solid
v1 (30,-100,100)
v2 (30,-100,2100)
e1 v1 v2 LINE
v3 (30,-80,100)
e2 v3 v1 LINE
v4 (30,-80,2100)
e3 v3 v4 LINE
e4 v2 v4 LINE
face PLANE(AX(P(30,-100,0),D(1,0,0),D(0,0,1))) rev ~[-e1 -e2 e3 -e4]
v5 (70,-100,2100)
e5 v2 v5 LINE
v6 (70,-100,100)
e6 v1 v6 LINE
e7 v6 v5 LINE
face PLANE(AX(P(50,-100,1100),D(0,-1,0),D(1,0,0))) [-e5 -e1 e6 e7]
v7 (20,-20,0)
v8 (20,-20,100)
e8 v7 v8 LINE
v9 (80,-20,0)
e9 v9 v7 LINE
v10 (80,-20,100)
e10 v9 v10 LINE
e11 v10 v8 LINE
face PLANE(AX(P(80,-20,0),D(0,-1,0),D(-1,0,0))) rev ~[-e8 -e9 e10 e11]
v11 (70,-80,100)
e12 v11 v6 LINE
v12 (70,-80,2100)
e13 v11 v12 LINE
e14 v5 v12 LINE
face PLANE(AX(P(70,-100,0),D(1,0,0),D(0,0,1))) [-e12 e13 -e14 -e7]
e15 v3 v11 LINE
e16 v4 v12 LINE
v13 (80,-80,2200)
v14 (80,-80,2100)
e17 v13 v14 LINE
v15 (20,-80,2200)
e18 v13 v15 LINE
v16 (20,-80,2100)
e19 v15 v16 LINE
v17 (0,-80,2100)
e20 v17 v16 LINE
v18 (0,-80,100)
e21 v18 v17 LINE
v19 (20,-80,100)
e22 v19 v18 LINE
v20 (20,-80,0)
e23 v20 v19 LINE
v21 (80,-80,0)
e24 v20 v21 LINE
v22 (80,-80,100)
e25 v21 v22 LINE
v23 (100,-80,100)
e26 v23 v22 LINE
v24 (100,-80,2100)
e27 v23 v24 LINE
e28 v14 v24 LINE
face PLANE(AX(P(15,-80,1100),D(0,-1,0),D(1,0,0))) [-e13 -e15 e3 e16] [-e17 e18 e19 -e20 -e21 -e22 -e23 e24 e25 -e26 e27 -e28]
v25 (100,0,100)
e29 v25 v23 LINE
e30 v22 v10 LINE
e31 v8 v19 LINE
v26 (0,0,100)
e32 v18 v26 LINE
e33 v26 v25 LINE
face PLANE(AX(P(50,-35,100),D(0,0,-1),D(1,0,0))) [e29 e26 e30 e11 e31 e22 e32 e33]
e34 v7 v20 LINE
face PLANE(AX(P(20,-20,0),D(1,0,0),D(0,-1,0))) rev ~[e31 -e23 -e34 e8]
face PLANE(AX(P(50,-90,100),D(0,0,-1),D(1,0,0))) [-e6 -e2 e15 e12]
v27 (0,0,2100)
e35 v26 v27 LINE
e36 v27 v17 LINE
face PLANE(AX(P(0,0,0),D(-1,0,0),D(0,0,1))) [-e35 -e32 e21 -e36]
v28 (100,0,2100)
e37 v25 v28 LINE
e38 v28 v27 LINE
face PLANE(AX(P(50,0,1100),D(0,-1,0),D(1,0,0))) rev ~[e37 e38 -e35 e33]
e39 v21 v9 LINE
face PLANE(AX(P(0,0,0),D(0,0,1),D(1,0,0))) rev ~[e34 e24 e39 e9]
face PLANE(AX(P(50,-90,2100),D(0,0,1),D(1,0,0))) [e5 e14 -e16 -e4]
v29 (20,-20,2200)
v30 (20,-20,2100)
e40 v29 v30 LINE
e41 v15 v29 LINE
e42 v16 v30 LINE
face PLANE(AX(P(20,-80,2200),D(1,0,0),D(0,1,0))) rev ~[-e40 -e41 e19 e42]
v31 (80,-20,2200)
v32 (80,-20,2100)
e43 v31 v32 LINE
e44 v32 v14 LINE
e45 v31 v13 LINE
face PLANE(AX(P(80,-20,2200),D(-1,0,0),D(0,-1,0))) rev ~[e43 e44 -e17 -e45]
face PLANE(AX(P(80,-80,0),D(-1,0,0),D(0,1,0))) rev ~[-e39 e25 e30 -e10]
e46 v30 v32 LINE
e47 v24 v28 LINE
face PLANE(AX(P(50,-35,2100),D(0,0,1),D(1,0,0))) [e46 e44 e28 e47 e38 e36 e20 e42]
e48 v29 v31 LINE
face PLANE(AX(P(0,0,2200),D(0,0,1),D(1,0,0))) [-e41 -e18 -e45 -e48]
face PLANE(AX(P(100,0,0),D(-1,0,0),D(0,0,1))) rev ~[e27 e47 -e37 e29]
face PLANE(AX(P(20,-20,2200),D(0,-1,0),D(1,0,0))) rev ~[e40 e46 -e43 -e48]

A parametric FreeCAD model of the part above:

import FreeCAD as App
import Part
import Sketcher
from FreeCAD import Vector
Q = App.Units.Quantity

doc = App.newDocument("Part")
body = doc.addObject("PartDesign::Body", "Body")

sketch1 = body.newObject("Sketcher::SketchObject", "Sketch")
sketch1.AttachmentSupport = (doc.getObject("XZ_Plane"), [""])
sketch1.MapMode = "FlatFace"
sketch1.addGeometry([
    Part.LineSegment(Vector(0, 2200, 0), Vector(0, 0, 0)),
    Part.LineSegment(Vector(0, 0, 0), Vector(100, 0, 0)),
    Part.LineSegment(Vector(100, 0, 0), Vector(100, 2200, 0)),
    Part.LineSegment(Vector(100, 2200, 0), Vector(0, 2200, 0)),
], False)
sketch1.addConstraint([
    Sketcher.Constraint("Coincident", 0, 2, 1, 1),
    Sketcher.Constraint("Coincident", 1, 2, 2, 1),
    Sketcher.Constraint("Coincident", 2, 2, 3, 1),
    Sketcher.Constraint("Coincident", 3, 2, 0, 1),
    Sketcher.Constraint("Vertical", 0),
    Sketcher.Constraint("Horizontal", 1),
    Sketcher.Constraint("Vertical", 2),
    Sketcher.Constraint("Horizontal", 3),
    Sketcher.Constraint("Coincident", 0, 2, -1, 1),
    Sketcher.Constraint("DistanceX", 1, 1, 1, 2, Q("100 mm")),
    Sketcher.Constraint("DistanceY", 0, 2, 0, 1, Q("2200 mm")),
])
pad1 = body.newObject("PartDesign::Pad", "Pad")
pad1.Profile = sketch1
pad1.Length = 100

sketch2 = body.newObject("Sketcher::SketchObject", "Sketch001")
sketch2.AttachmentSupport = (doc.getObject("XZ_Plane"), [""])
sketch2.MapMode = "FlatFace"
sketch2.AttachmentOffset = App.Placement(Vector(0, 0, 100), App.Rotation())
sketch2.addGeometry([
    Part.LineSegment(Vector(0, 2200, 0), Vector(0, 0, 0)),
    Part.LineSegment(Vector(0, 0, 0), Vector(30, 0, 0)),
    Part.LineSegment(Vector(30, 0, 0), Vector(30, 2200, 0)),
    Part.LineSegment(Vector(30, 2200, 0), Vector(0, 2200, 0)),
    Part.LineSegment(Vector(70, 2200, 0), Vector(70, 0, 0)),
    Part.LineSegment(Vector(70, 0, 0), Vector(100, 0, 0)),
    Part.LineSegment(Vector(100, 0, 0), Vector(100, 2200, 0)),
    Part.LineSegment(Vector(100, 2200, 0), Vector(70, 2200, 0)),
], False)
sketch2.addConstraint([
    Sketcher.Constraint("Coincident", 0, 2, 1, 1),
    Sketcher.Constraint("Coincident", 1, 2, 2, 1),
    Sketcher.Constraint("Coincident", 2, 2, 3, 1),
    Sketcher.Constraint("Coincident", 3, 2, 0, 1),
    Sketcher.Constraint("Coincident", 4, 2, 5, 1),
    Sketcher.Constraint("Coincident", 5, 2, 6, 1),
    Sketcher.Constraint("Coincident", 6, 2, 7, 1),
    Sketcher.Constraint("Coincident", 7, 2, 4, 1),
    Sketcher.Constraint("Vertical", 0),
    Sketcher.Constraint("Horizontal", 1),
    Sketcher.Constraint("Vertical", 2),
    Sketcher.Constraint("Horizontal", 3),
    Sketcher.Constraint("Vertical", 4),
    Sketcher.Constraint("Horizontal", 5),
    Sketcher.Constraint("Vertical", 6),
    Sketcher.Constraint("Horizontal", 7),
    Sketcher.Constraint("Coincident", 0, 2, -1, 1),
    Sketcher.Constraint("PointOnObject", 4, 2, -1),
    Sketcher.Constraint("Horizontal", 3, 2, 6, 2),
    Sketcher.Constraint("Equal", 3, 5),
    Sketcher.Constraint("DistanceX", 1, 1, 1, 2, Q("30 mm")),
    Sketcher.Constraint("DistanceY", 0, 2, 0, 1, Q("2200 mm")),
    Sketcher.Constraint("DistanceX", -1, 1, 4, 2, Q("70 mm")),
])
pocket1 = body.newObject("PartDesign::Pocket", "Pocket")
pocket1.Profile = sketch2
pocket1.Length = 20

sketch3 = body.newObject("Sketcher::SketchObject", "Sketch002")
sketch3.AttachmentSupport = (doc.getObject("XY_Plane"), [""])
sketch3.MapMode = "FlatFace"
sketch3.AttachmentOffset = App.Placement(Vector(0, 0, 2200), App.Rotation())
sketch3.addGeometry([
    Part.LineSegment(Vector(20, -80, 0), Vector(20, -20, 0)),
    Part.LineSegment(Vector(20, -20, 0), Vector(80, -20, 0)),
    Part.LineSegment(Vector(80, -20, 0), Vector(80, -80, 0)),
    Part.LineSegment(Vector(80, -80, 0), Vector(100, -80, 0)),
    Part.LineSegment(Vector(100, -80, 0), Vector(100, 0, 0)),
    Part.LineSegment(Vector(100, 0, 0), Vector(0, 0, 0)),
    Part.LineSegment(Vector(0, 0, 0), Vector(0, -80, 0)),
    Part.LineSegment(Vector(0, -80, 0), Vector(20, -80, 0)),
    Part.LineSegment(Vector(30, -80, 0), Vector(30, -100, 0)),
    Part.LineSegment(Vector(30, -100, 0), Vector(70, -100, 0)),
    Part.LineSegment(Vector(70, -100, 0), Vector(70, -80, 0)),
    Part.LineSegment(Vector(70, -80, 0), Vector(30, -80, 0)),
], False)
sketch3.addConstraint([
    Sketcher.Constraint("Coincident", 0, 2, 1, 1),
    Sketcher.Constraint("Coincident", 1, 2, 2, 1),
    Sketcher.Constraint("Coincident", 2, 2, 3, 1),
    Sketcher.Constraint("Coincident", 3, 2, 4, 1),
    Sketcher.Constraint("Coincident", 4, 2, 5, 1),
    Sketcher.Constraint("Coincident", 5, 2, 6, 1),
    Sketcher.Constraint("Coincident", 6, 2, 7, 1),
    Sketcher.Constraint("Coincident", 7, 2, 0, 1),
    Sketcher.Constraint("Coincident", 8, 2, 9, 1),
    Sketcher.Constraint("Coincident", 9, 2, 10, 1),
    Sketcher.Constraint("Coincident", 10, 2, 11, 1),
    Sketcher.Constraint("Coincident", 11, 2, 8, 1),
    Sketcher.Constraint("Vertical", 0),
    Sketcher.Constraint("Horizontal", 1),
    Sketcher.Constraint("Vertical", 2),
    Sketcher.Constraint("Horizontal", 3),
    Sketcher.Constraint("Vertical", 4),
    Sketcher.Constraint("Horizontal", 5),
    Sketcher.Constraint("Vertical", 6),
    Sketcher.Constraint("Horizontal", 7),
    Sketcher.Constraint("Vertical", 8),
    Sketcher.Constraint("Horizontal", 9),
    Sketcher.Constraint("Vertical", 10),
    Sketcher.Constraint("Horizontal", 11),
    Sketcher.Constraint("Coincident", 5, 2, -1, 1),
    Sketcher.Constraint("Horizontal", 3, 2, 6, 2),
    Sketcher.Constraint("Horizontal", 7, 2, 10, 2),
    Sketcher.Constraint("Equal", 3, 7),
    Sketcher.Constraint("Equal", 1, 0),
    Sketcher.Constraint("Equal", 7, 8),
    Sketcher.Constraint("DistanceX", 1, 1, 1, 2, Q("60 mm")),
    Sketcher.Constraint("DistanceX", 3, 1, 3, 2, Q("20 mm")),
    Sketcher.Constraint("DistanceX", 9, 1, 9, 2, Q("40 mm")),
    Sketcher.Constraint("DistanceY", 4, 1, 4, 2, Q("80 mm")),
    Sketcher.Constraint("DistanceX", -1, 1, 8, 2, Q("30 mm")),
])
pocket2 = body.newObject("PartDesign::Pocket", "Pocket001")
pocket2.Profile = sketch3
pocket2.Length = 100

sketch4 = body.newObject("Sketcher::SketchObject", "Sketch003")
sketch4.AttachmentSupport = (doc.getObject("XY_Plane"), [""])
sketch4.MapMode = "FlatFace"
sketch4.addGeometry([
    Part.LineSegment(Vector(80, -80, 0), Vector(80, -20, 0)),
    Part.LineSegment(Vector(80, -20, 0), Vector(20, -20, 0)),
    Part.LineSegment(Vector(20, -20, 0), Vector(20, -80, 0)),
    Part.LineSegment(Vector(20, -80, 0), Vector(0, -80, 0)),
    Part.LineSegment(Vector(0, -80, 0), Vector(0, 0, 0)),
    Part.LineSegment(Vector(0, 0, 0), Vector(100, 0, 0)),
    Part.LineSegment(Vector(100, 0, 0), Vector(100, -80, 0)),
    Part.LineSegment(Vector(100, -80, 0), Vector(80, -80, 0)),
    Part.LineSegment(Vector(30, -100, 0), Vector(30, -80, 0)),
    Part.LineSegment(Vector(30, -80, 0), Vector(70, -80, 0)),
    Part.LineSegment(Vector(70, -80, 0), Vector(70, -100, 0)),
    Part.LineSegment(Vector(70, -100, 0), Vector(30, -100, 0)),
], False)
sketch4.addConstraint([
    Sketcher.Constraint("Coincident", 0, 2, 1, 1),
    Sketcher.Constraint("Coincident", 1, 2, 2, 1),
    Sketcher.Constraint("Coincident", 2, 2, 3, 1),
    Sketcher.Constraint("Coincident", 3, 2, 4, 1),
    Sketcher.Constraint("Coincident", 4, 2, 5, 1),
    Sketcher.Constraint("Coincident", 5, 2, 6, 1),
    Sketcher.Constraint("Coincident", 6, 2, 7, 1),
    Sketcher.Constraint("Coincident", 7, 2, 0, 1),
    Sketcher.Constraint("Coincident", 8, 2, 9, 1),
    Sketcher.Constraint("Coincident", 9, 2, 10, 1),
    Sketcher.Constraint("Coincident", 10, 2, 11, 1),
    Sketcher.Constraint("Coincident", 11, 2, 8, 1),
    Sketcher.Constraint("Vertical", 0),
    Sketcher.Constraint("Horizontal", 1),
    Sketcher.Constraint("Vertical", 2),
    Sketcher.Constraint("Horizontal", 3),
    Sketcher.Constraint("Vertical", 4),
    Sketcher.Constraint("Horizontal", 5),
    Sketcher.Constraint("Vertical", 6),
    Sketcher.Constraint("Horizontal", 7),
    Sketcher.Constraint("Vertical", 8),
    Sketcher.Constraint("Horizontal", 9),
    Sketcher.Constraint("Vertical", 10),
    Sketcher.Constraint("Horizontal", 11),
    Sketcher.Constraint("Coincident", 4, 2, -1, 1),
    Sketcher.Constraint("Horizontal", 3, 2, 6, 2),
    Sketcher.Constraint("Horizontal", 7, 2, 8, 2),
    Sketcher.Constraint("Equal", 3, 7),
    Sketcher.Constraint("Equal", 1, 0),
    Sketcher.Constraint("Equal", 7, 8),
    Sketcher.Constraint("DistanceX", 1, 2, 1, 1, Q("60 mm")),
    Sketcher.Constraint("DistanceX", 3, 2, 3, 1, Q("20 mm")),
    Sketcher.Constraint("DistanceX", 9, 1, 9, 2, Q("40 mm")),
    Sketcher.Constraint("DistanceY", 4, 1, 4, 2, Q("80 mm")),
    Sketcher.Constraint("DistanceX", -1, 1, 8, 2, Q("30 mm")),
])
pocket3 = body.newObject("PartDesign::Pocket", "Pocket002")
pocket3.Profile = sketch4
pocket3.Length = 100
pocket3.Reversed = True

doc.recompute()
